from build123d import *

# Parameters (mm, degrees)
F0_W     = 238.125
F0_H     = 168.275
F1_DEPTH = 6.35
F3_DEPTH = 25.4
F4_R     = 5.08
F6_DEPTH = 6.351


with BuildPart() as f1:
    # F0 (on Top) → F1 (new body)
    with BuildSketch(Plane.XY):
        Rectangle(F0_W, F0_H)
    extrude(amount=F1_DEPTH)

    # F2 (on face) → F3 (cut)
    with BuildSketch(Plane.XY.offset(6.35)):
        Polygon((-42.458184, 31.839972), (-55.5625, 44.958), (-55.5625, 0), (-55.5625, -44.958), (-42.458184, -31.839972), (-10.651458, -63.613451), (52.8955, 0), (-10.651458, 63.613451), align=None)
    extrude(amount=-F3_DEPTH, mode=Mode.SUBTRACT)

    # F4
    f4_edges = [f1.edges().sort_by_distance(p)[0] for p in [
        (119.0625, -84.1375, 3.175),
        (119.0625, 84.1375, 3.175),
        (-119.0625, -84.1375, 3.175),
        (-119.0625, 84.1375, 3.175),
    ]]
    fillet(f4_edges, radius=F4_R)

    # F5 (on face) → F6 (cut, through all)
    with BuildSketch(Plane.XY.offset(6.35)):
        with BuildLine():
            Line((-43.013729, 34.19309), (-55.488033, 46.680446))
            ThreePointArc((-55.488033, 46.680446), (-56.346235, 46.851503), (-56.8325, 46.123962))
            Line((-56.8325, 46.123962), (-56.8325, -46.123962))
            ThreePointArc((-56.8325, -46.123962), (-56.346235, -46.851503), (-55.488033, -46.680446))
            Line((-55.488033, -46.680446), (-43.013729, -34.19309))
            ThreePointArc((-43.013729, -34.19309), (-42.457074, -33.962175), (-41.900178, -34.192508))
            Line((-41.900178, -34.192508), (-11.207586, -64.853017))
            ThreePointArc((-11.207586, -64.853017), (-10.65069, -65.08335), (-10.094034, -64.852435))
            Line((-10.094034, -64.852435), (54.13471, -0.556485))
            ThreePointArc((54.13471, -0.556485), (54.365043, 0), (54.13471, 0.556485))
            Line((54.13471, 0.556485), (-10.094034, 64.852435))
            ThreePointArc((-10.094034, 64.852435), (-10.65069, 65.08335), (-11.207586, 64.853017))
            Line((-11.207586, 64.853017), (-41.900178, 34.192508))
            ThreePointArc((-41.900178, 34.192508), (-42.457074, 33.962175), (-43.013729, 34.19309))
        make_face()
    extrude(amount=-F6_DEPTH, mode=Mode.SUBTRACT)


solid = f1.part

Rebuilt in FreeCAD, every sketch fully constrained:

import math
import FreeCAD as App
import Part
import Sketcher
from FreeCAD import Vector
Q = App.Units.Quantity


def edges_at(feature, points):
    """Names of the edges that pass closest to the given points."""
    edges = feature.Shape.Edges
    near = lambda p: min(range(len(edges)), key=lambda i: edges[i].distToShape(Part.Vertex(*p))[0])
    return sorted({f"Edge{near(p) + 1}" for p in points})

doc = App.newDocument("Part")
body = doc.addObject("PartDesign::Body", "Body")

sketch1 = body.newObject("Sketcher::SketchObject", "Sketch")
sketch1.AttachmentSupport = (doc.getObject("XY_Plane"), [""])
sketch1.MapMode = "FlatFace"
sketch1.addGeometry([
    Part.LineSegment(Vector(-119, 84, 0), Vector(-119, -84, 0)),
    Part.LineSegment(Vector(-119, -84, 0), Vector(119, -84, 0)),
    Part.LineSegment(Vector(119, -84, 0), Vector(119, 84, 0)),
    Part.LineSegment(Vector(119, 84, 0), Vector(-119, 84, 0)),
], False)
sketch1.addConstraint([
    Sketcher.Constraint("Coincident", 0, 2, 1, 1),
    Sketcher.Constraint("Coincident", 1, 2, 2, 1),
    Sketcher.Constraint("Coincident", 2, 2, 3, 1),
    Sketcher.Constraint("Coincident", 3, 2, 0, 1),
    Sketcher.Constraint("Vertical", 0),
    Sketcher.Constraint("Horizontal", 1),
    Sketcher.Constraint("Vertical", 2),
    Sketcher.Constraint("Horizontal", 3),
    Sketcher.Constraint("Symmetric", 0, 2, 2, 2, -1, 1),
    Sketcher.Constraint("DistanceX", 1, 1, 1, 2, Q("9.375 in")),
    Sketcher.Constraint("DistanceY", 0, 2, 0, 1, Q("6.625 in")),
])
pad1 = body.newObject("PartDesign::Pad", "Pad")
pad1.Profile = sketch1
pad1.Length = Q("0.25 in")

sketch2 = body.newObject("Sketcher::SketchObject", "Sketch001")
sketch2.AttachmentSupport = (doc.getObject("XY_Plane"), [""])
sketch2.MapMode = "FlatFace"
sketch2.AttachmentOffset = App.Placement(Vector(0, 0, 0.25 * 25.4), App.Rotation())
sketch2.addGeometry([
    Part.LineSegment(Vector(-42, 32, 0), Vector(-56, 45, 0)),
    Part.LineSegment(Vector(-56, 45, 0), Vector(-56, -45, 0)),
    Part.LineSegment(Vector(-56, -45, 0), Vector(-42, -32, 0)),
    Part.LineSegment(Vector(-42, -32, 0), Vector(-11, -64, 0)),
    Part.LineSegment(Vector(-11, -64, 0), Vector(53, 0, 0)),
    Part.LineSegment(Vector(53, 0, 0), Vector(-11, 64, 0)),
    Part.LineSegment(Vector(-11, 64, 0), Vector(-42, 32, 0)),
], False)
sketch2.addConstraint([
    Sketcher.Constraint("Coincident", 0, 2, 1, 1),
    Sketcher.Constraint("Coincident", 1, 2, 2, 1),
    Sketcher.Constraint("Coincident", 2, 2, 3, 1),
    Sketcher.Constraint("Coincident", 3, 2, 4, 1),
    Sketcher.Constraint("Coincident", 4, 2, 5, 1),
    Sketcher.Constraint("Coincident", 5, 2, 6, 1),
    Sketcher.Constraint("Coincident", 6, 2, 0, 1),
    Sketcher.Constraint("Vertical", 1),
    Sketcher.Constraint("Symmetric", 3, 2, 5, 2, -1),
    Sketcher.Constraint("Symmetric", 2, 2, 6, 2, -1),
    Sketcher.Constraint("PointOnObject", 4, 2, -1),
    Sketcher.Constraint("Perpendicular", 2, 3),
    Sketcher.Constraint("Perpendicular", 3, 4),
    Sketcher.Constraint("Parallel", 0, 5),
    Sketcher.Constraint("DistanceY", 1, 2, 1, 1, Q("3.54 in")),
    Sketcher.Constraint("Distance", 0, Q("0.73 in")),
    Sketcher.Constraint("Distance", 3, Q("1.77 in")),
    Sketcher.Constraint("Distance", 4, Q("3.54 in")),
    Sketcher.Constraint("DistanceX", 0, 2, -1, 1, Q("2.1875 in")),
])
pocket1 = body.newObject("PartDesign::Pocket", "Pocket")
pocket1.Profile = sketch2
pocket1.Length = Q("1 in")
doc.recompute()

fillet = body.newObject("PartDesign::Fillet", "Fillet")
fillet.Base = (pocket1, edges_at(pocket1, [
    (119.062, -84.138, 3.175),
    (119.062, 84.138, 3.175),
    (-119.062, -84.138, 3.175),
    (-119.062, 84.138, 3.175),
]))
fillet.Radius = Q("0.2 in")

sketch3 = body.newObject("Sketcher::SketchObject", "Sketch002")
sketch3.AttachmentSupport = (doc.getObject("XY_Plane"), [""])
sketch3.MapMode = "FlatFace"
sketch3.AttachmentOffset = App.Placement(Vector(0, 0, 0.25 * 25.4), App.Rotation())
sketch3.addGeometry([
    Part.LineSegment(Vector(-43, 34.2, 0), Vector(-55.5, 46.7, 0)),
    Part.ArcOfCircle(Part.Circle(Vector(-56, 46.1, 0), Vector(0, 0, 1), 0.8), math.radians(45), math.radians(180)),
    Part.LineSegment(Vector(-56.8, 46.1, 0), Vector(-56.8, -46.1, 0)),
    Part.ArcOfCircle(Part.Circle(Vector(-56, -46.1, 0), Vector(0, 0, 1), 0.8), math.radians(-180), math.radians(-45)),
    Part.LineSegment(Vector(-55.5, -46.7, 0), Vector(-43, -34.2, 0)),
    Part.ArcOfCircle(Part.Circle(Vector(-42.5, -34.7, 0), Vector(0, 0, 1), 0.8), math.radians(45), math.radians(135)),
    Part.LineSegment(Vector(-41.9, -34.2, 0), Vector(-11.2, -64.9, 0)),
    Part.ArcOfCircle(Part.Circle(Vector(-10.7, -64.3, 0), Vector(0, 0, 1), 0.8), math.radians(-135), math.radians(-45)),
    Part.LineSegment(Vector(-10.1, -64.9, 0), Vector(54.1, -0.6, 0)),
    Part.ArcOfCircle(Part.Circle(Vector(53.6, 0, 0), Vector(0, 0, 1), 0.8), math.radians(-45), math.radians(45)),
    Part.LineSegment(Vector(54.1, 0.6, 0), Vector(-10.1, 64.9, 0)),
    Part.ArcOfCircle(Part.Circle(Vector(-10.7, 64.3, 0), Vector(0, 0, 1), 0.8), math.radians(45), math.radians(135)),
    Part.LineSegment(Vector(-11.2, 64.9, 0), Vector(-41.9, 34.2, 0)),
    Part.ArcOfCircle(Part.Circle(Vector(-42.5, 34.7, 0), Vector(0, 0, 1), 0.8), math.radians(-135), math.radians(-45)),
], False)
sketch3.addConstraint([
    Sketcher.Constraint("Tangent", 0, 2, 1, 1),
    Sketcher.Constraint("Tangent", 1, 2, 2, 1),
    Sketcher.Constraint("Tangent", 2, 2, 3, 1),
    Sketcher.Constraint("Tangent", 3, 2, 4, 1),
    Sketcher.Constraint("Tangent", 4, 2, 5, 2),
    Sketcher.Constraint("Tangent", 5, 1, 6, 1),
    Sketcher.Constraint("Tangent", 6, 2, 7, 1),
    Sketcher.Constraint("Tangent", 7, 2, 8, 1),
    Sketcher.Constraint("Tangent", 8, 2, 9, 1),
    Sketcher.Constraint("Tangent", 9, 2, 10, 1),
    Sketcher.Constraint("Tangent", 10, 2, 11, 1),
    Sketcher.Constraint("Tangent", 11, 2, 12, 1),
    Sketcher.Constraint("Tangent", 12, 2, 13, 2),
    Sketcher.Constraint("Tangent", 13, 1, 0, 1),
    Sketcher.Constraint("Vertical", 2),
    Sketcher.Constraint("Equal", 1, 3),
    Sketcher.Constraint("Equal", 3, 5),
    Sketcher.Constraint("Equal", 5, 7),
    Sketcher.Constraint("Equal", 7, 9),
    Sketcher.Constraint("Equal", 9, 11),
    Sketcher.Constraint("Equal", 11, 13),
    Sketcher.Constraint("Symmetric", 7, 3, 11, 3, -1),
    Sketcher.Constraint("Symmetric", 5, 3, 13, 3, -1),
    Sketcher.Constraint("PointOnObject", 9, 3, -1),
    Sketcher.Constraint("Perpendicular", 4, 6),
    Sketcher.Constraint("Perpendicular", 6, 8),
    Sketcher.Constraint("Parallel", 0, 10),
    Sketcher.Constraint("Radius", 1, Q("0.031 in")),
    Sketcher.Constraint("Distance", 6, Q("1.708 in")),
    Sketcher.Constraint("DistanceX", 1, 3, -1, 1, Q("2.2065 in")),
    Sketcher.Constraint("DistanceX", 7, 3, -1, 1, Q("10.651101 mm")),
    Sketcher.Constraint("DistanceY", 7, 3, 11, 3, Q("128.591899 mm")),
    Sketcher.Constraint("Distance", 0, Q("17.650561 mm")),
])
pocket2 = body.newObject("PartDesign::Pocket", "Pocket001")
pocket2.Profile = sketch3
pocket2.Type = "ThroughAll"

doc.recompute()
